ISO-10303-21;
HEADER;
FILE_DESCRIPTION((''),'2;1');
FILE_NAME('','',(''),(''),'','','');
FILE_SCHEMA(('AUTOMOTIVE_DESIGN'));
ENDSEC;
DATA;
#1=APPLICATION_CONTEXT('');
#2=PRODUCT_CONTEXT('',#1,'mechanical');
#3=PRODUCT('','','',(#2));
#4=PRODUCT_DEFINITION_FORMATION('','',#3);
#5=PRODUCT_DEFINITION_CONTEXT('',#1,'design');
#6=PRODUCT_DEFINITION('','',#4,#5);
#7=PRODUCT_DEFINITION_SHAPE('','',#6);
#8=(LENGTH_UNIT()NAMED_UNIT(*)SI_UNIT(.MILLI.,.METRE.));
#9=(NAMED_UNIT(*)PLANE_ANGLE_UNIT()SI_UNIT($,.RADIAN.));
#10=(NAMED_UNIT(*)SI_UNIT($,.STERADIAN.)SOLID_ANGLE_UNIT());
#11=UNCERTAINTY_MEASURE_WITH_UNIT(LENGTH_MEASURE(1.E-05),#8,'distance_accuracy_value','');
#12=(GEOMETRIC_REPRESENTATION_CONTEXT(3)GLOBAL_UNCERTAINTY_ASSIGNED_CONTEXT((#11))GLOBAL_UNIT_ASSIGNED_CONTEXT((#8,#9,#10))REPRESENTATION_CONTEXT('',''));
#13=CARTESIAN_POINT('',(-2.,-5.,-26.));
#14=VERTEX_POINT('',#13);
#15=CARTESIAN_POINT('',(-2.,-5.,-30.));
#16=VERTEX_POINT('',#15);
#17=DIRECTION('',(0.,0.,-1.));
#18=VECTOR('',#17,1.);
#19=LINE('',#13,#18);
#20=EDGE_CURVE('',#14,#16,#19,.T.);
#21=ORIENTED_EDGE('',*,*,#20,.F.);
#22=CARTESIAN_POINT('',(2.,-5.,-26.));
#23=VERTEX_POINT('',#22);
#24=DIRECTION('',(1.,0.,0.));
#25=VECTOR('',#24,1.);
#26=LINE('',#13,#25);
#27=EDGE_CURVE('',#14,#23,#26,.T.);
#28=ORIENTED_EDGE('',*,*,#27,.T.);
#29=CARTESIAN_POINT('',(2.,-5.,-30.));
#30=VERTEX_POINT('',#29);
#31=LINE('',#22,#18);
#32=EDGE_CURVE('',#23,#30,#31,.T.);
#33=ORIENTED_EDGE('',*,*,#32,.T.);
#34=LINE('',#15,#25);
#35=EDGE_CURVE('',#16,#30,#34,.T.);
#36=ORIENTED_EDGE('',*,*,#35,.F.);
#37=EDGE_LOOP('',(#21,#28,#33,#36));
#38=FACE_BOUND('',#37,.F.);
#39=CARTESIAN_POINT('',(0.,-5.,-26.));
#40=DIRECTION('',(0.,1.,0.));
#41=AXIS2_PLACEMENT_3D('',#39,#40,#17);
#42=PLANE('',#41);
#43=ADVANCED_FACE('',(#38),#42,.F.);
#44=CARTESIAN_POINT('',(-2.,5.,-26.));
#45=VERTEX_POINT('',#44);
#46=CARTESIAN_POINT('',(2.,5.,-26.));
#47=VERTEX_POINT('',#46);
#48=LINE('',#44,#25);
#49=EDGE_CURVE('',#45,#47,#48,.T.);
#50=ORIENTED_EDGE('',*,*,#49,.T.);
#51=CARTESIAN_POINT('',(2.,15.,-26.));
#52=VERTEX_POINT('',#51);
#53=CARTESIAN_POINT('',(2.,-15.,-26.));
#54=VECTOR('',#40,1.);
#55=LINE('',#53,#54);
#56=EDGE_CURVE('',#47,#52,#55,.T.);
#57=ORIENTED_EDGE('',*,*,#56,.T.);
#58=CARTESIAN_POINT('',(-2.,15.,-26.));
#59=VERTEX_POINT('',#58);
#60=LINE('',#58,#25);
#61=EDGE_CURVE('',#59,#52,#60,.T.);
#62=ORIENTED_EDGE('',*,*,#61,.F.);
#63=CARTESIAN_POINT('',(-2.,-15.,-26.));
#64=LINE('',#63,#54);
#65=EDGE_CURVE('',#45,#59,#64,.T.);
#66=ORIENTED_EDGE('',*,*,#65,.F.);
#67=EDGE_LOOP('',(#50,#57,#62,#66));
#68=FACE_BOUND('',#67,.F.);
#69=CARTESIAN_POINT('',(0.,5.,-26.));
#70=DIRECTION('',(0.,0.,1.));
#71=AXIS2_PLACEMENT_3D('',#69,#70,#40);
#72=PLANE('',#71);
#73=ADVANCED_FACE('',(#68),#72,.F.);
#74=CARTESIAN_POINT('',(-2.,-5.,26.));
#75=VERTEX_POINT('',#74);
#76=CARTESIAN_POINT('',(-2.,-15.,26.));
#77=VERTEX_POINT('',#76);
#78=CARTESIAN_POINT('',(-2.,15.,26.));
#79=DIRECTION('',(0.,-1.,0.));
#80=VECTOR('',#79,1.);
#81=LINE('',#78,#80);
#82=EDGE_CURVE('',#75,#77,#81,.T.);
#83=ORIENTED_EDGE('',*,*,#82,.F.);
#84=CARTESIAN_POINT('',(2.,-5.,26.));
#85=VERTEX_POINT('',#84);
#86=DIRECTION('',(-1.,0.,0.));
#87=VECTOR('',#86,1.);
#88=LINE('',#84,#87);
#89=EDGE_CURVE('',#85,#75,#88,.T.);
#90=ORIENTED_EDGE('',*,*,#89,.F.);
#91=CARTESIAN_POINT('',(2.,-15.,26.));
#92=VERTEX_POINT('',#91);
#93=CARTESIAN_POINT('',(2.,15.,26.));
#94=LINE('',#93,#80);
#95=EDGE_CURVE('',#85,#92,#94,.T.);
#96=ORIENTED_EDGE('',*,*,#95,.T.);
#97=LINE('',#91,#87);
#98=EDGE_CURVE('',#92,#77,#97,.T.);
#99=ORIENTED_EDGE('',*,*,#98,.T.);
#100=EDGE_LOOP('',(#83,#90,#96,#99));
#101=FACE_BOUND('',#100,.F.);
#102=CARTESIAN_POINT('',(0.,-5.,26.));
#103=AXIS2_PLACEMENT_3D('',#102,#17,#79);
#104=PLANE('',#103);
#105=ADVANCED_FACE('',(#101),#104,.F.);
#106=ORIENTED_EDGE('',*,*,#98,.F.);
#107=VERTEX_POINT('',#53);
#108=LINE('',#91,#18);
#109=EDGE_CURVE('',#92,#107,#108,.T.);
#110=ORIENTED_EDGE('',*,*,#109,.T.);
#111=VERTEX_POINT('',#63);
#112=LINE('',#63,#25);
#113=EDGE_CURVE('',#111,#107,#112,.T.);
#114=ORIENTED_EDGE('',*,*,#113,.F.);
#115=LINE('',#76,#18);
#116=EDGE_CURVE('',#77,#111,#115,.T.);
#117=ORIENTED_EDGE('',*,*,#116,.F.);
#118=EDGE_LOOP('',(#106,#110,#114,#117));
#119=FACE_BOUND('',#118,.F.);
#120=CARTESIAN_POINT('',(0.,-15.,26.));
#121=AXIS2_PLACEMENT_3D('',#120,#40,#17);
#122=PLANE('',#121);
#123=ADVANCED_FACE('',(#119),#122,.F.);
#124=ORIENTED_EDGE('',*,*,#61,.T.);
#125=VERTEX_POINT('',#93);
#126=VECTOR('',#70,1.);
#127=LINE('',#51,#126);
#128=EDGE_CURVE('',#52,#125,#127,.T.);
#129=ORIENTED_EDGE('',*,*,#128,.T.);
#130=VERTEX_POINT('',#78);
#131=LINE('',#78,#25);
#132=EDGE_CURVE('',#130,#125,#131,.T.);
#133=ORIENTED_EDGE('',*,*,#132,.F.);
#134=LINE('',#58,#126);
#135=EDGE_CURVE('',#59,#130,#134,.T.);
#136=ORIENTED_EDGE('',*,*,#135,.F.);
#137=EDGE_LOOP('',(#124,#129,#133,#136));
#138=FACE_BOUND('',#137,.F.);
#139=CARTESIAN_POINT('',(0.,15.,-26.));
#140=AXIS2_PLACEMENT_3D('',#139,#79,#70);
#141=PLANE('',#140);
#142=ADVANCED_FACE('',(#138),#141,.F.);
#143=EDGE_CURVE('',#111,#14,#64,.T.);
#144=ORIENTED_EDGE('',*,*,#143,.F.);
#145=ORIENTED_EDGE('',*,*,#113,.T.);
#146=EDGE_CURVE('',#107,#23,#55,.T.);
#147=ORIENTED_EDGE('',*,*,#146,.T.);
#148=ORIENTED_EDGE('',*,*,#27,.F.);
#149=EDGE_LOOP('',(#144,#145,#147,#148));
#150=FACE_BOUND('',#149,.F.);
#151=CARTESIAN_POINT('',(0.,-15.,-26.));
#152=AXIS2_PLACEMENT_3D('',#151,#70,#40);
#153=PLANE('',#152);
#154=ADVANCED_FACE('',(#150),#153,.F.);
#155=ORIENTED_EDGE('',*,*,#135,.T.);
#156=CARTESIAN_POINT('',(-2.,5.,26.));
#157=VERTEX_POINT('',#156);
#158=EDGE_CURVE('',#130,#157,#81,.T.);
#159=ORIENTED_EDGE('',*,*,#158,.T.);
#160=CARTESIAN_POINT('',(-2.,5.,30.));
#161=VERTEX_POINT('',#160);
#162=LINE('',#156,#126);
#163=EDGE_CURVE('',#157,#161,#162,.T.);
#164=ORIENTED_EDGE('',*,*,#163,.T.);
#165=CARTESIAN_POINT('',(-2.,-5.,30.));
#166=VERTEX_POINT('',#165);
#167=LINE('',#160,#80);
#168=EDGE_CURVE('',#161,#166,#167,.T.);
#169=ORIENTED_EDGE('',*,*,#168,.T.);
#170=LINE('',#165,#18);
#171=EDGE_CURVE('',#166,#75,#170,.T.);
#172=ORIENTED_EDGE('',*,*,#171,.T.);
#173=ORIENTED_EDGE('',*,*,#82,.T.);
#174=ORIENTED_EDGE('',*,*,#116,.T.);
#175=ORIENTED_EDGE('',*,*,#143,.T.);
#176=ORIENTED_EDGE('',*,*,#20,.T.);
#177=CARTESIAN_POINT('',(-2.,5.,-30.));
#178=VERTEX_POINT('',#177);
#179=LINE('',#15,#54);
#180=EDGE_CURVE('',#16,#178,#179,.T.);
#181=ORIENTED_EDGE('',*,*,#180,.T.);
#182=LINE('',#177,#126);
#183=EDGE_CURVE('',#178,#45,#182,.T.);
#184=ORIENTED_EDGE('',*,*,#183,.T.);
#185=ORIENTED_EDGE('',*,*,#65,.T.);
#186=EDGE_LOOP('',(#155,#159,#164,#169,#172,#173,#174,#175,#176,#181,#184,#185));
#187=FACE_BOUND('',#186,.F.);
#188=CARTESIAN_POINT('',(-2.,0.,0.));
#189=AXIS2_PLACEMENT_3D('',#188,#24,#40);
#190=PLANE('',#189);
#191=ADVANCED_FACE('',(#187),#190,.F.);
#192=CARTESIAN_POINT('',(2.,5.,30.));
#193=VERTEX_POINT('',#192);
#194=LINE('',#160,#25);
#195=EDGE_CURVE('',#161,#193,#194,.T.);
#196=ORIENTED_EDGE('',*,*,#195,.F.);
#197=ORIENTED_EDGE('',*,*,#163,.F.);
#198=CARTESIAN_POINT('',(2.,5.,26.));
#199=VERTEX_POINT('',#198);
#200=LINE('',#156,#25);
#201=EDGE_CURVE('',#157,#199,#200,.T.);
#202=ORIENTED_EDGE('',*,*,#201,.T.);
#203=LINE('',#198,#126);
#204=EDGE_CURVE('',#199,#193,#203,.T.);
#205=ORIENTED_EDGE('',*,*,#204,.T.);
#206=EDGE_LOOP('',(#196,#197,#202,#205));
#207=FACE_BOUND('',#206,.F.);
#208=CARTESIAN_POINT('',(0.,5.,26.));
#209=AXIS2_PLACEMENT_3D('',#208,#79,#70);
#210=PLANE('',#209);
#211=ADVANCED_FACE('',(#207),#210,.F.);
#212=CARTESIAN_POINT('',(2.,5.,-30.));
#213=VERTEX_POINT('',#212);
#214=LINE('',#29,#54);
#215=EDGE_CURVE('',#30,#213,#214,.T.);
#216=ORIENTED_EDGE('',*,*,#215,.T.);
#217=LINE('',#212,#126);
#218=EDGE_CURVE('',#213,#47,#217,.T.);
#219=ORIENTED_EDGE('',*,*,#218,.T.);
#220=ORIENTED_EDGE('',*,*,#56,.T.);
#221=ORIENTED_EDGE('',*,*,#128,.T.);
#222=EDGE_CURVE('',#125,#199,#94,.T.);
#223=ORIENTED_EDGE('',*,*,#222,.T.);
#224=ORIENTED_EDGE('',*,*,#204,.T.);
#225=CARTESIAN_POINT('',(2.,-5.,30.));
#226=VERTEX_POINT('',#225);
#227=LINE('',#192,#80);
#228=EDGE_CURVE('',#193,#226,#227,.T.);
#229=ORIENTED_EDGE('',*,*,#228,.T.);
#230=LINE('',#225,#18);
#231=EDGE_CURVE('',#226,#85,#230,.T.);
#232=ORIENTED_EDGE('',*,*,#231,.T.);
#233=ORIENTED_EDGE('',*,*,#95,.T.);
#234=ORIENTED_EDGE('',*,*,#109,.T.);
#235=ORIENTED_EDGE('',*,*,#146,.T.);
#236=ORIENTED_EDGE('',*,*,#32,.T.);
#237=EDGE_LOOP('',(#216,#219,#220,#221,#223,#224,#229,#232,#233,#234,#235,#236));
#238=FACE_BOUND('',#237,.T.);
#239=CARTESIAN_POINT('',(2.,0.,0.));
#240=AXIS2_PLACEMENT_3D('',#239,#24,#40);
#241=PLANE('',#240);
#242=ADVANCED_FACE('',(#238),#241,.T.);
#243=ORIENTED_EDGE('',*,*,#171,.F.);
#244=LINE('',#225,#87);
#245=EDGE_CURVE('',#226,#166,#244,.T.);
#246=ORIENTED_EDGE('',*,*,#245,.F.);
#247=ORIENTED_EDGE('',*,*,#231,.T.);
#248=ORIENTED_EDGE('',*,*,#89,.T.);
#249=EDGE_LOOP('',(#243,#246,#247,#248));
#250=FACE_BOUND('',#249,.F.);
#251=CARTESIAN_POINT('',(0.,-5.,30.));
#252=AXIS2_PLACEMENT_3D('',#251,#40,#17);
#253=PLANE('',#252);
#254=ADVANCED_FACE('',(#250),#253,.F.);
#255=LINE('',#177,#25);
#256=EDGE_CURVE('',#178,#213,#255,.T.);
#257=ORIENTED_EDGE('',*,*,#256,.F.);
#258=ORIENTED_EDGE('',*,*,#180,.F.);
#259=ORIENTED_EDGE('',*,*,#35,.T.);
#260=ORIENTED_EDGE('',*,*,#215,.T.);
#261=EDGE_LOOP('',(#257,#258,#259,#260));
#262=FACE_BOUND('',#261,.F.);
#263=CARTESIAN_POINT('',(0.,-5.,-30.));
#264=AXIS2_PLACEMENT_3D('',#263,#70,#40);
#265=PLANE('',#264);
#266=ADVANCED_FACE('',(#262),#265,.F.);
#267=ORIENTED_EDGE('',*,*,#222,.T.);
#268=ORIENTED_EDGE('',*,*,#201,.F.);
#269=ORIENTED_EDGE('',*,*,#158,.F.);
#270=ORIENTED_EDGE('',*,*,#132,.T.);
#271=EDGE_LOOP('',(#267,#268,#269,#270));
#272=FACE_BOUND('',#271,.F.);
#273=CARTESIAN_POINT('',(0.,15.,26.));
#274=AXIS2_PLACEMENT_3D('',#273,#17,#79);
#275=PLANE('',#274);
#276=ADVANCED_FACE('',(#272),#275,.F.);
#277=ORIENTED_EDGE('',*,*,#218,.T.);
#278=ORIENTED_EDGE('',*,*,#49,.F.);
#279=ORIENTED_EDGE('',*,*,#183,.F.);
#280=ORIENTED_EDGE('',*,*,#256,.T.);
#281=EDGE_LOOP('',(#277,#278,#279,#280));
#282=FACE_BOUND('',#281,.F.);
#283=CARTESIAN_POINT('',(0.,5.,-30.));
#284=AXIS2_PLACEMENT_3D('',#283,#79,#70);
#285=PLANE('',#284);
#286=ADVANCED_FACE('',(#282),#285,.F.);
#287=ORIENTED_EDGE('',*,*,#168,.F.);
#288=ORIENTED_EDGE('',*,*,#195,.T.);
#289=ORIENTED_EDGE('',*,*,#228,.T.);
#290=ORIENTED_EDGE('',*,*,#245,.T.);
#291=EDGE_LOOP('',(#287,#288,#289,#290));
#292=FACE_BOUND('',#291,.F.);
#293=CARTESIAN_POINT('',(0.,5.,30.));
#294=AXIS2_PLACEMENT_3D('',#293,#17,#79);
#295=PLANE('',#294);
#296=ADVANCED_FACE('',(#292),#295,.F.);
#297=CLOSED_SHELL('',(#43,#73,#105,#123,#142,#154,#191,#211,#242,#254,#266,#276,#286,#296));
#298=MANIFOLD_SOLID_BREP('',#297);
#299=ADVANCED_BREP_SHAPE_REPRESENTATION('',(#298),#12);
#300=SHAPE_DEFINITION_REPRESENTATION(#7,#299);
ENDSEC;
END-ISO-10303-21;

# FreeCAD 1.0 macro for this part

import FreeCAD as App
import Part
import Sketcher
from FreeCAD import Vector
Q = App.Units.Quantity


def add_polygon(sketch, points):
    """Adds a closed chain of lines whose ends are joined by coincident constraints."""
    first, n = sketch.GeometryCount, len(points)
    for a, b in zip(points, points[1:] + points[:1]):
        sketch.addGeometry(Part.LineSegment(App.Vector(*a, 0), App.Vector(*b, 0)), False)
    for i in range(n):
        sketch.addConstraint(Sketcher.Constraint("Coincident", first + i, 2, first + (i + 1) % n, 1))

doc = App.newDocument("Part")
params = doc.addObject("Spreadsheet::Sheet", "Params")
for row, (alias, value) in enumerate([
    ("sketch1_width", "10 mm"),
    ("sketch1_height", "4 mm"),
    ("pad1_length", "4 mm"),
], start=1):
    params.set(f"A{row}", alias)
    params.set(f"B{row}", "=" + value)
    params.setAlias(f"B{row}", alias)

body = doc.addObject("PartDesign::Body", "Body")

sketch1 = doc.addObject("Sketcher::SketchObject", "Sketch")
body.addObject(sketch1)
sketch1.AttachmentSupport = (doc.YZ_Plane, [""])
sketch1.MapMode = "FlatFace"
add_polygon(sketch1, [(-15, 26), (-15, -26), (-5, -26), (-5, -30), (5, -30), (5, -26), (15, -26), (15, 26), (5, 26), (5, 30), (-5, 30), (-5, 26)])
sketch1.addConstraint(Sketcher.Constraint("Vertical", 0))
sketch1.addConstraint(Sketcher.Constraint("Horizontal", 1))
sketch1.addConstraint(Sketcher.Constraint("Vertical", 2))
sketch1.addConstraint(Sketcher.Constraint("Horizontal", 3))
sketch1.addConstraint(Sketcher.Constraint("Vertical", 4))
sketch1.addConstraint(Sketcher.Constraint("Horizontal", 5))
sketch1.addConstraint(Sketcher.Constraint("Vertical", 6))
sketch1.addConstraint(Sketcher.Constraint("Horizontal", 7))
sketch1.addConstraint(Sketcher.Constraint("Vertical", 8))
sketch1.addConstraint(Sketcher.Constraint("Horizontal", 9))
sketch1.addConstraint(Sketcher.Constraint("Vertical", 10))
sketch1.addConstraint(Sketcher.Constraint("Horizontal", 11))
sketch1.addConstraint(Sketcher.Constraint("Symmetric", 0, 2, 6, 2, -1, 1))
sketch1.addConstraint(Sketcher.Constraint("Symmetric", 2, 2, 8, 2, -1, 1))
sketch1.addConstraint(Sketcher.Constraint("Symmetric", 4, 2, 10, 2, -1, 1))
sketch1.addConstraint(Sketcher.Constraint("Symmetric", 1, 2, 4, 2, -2))
sketch1.addConstraint(Sketcher.Constraint("Equal", 1, 3))
sketch1.addConstraint(Sketcher.Constraint("DistanceX", 1, 1, 1, 2, Q("10 mm")))
sketch1.addConstraint(Sketcher.Constraint("DistanceY", 2, 2, 2, 1, Q("4 mm")))
sketch1.addConstraint(Sketcher.Constraint("DistanceY", 2, 2, -1, 1, Q("30 mm")))
sketch1.setExpression("Constraints[29]", "Params.sketch1_width")
sketch1.setExpression("Constraints[30]", "Params.sketch1_height")
pad1 = doc.addObject("PartDesign::Pad", "Pad")
body.addObject(pad1)
pad1.Profile = sketch1
pad1.setExpression("Length", "Params.pad1_length")
pad1.Midplane = True

doc.recompute()
